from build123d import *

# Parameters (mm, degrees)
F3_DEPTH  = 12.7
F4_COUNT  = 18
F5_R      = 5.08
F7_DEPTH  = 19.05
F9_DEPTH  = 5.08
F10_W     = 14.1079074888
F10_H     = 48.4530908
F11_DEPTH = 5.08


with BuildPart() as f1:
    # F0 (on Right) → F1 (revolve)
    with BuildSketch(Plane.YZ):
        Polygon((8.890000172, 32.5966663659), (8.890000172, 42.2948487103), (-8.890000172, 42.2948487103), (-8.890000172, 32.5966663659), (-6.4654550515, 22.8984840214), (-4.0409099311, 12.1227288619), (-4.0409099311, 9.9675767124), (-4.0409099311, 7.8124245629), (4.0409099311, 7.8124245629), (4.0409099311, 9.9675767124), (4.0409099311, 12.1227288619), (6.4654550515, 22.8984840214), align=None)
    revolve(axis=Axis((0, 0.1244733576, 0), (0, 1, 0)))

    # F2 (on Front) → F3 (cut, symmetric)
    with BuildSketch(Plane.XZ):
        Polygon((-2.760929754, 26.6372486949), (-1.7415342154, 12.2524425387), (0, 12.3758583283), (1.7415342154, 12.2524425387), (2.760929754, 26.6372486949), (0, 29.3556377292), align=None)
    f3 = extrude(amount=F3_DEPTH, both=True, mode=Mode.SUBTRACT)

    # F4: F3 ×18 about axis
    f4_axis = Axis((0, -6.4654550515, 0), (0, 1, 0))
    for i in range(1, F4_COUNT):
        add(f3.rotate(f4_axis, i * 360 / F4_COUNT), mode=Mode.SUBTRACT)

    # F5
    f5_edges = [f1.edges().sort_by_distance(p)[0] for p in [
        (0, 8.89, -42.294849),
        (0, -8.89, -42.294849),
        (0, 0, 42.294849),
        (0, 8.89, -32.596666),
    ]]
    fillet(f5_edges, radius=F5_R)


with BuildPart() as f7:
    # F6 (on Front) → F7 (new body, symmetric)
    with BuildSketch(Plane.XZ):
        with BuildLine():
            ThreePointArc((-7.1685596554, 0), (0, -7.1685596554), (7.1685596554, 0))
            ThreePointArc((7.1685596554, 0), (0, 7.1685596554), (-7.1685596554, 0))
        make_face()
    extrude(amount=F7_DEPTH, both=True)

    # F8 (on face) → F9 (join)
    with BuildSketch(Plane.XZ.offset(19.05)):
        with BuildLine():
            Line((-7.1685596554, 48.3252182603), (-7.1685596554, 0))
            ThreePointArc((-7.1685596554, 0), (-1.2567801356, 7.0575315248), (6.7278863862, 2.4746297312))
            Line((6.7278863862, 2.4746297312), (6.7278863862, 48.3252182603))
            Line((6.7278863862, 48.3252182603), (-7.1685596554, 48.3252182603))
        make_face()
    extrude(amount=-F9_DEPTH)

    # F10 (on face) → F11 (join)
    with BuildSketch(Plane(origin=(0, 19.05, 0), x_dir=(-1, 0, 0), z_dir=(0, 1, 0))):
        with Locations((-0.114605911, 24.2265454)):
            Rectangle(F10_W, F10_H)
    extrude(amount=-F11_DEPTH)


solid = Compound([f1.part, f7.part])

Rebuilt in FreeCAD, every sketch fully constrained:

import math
import FreeCAD as App
import Part
import Sketcher

V = App.Vector
Q = App.Units.Quantity


def edges_at(feature, points):
    """Names of the edges that pass closest to the given points."""
    edges = feature.Shape.Edges
    near = lambda p: min(range(len(edges)), key=lambda i: edges[i].distToShape(Part.Vertex(*p))[0])
    return sorted({f"Edge{near(p) + 1}" for p in points})


def add_polygon(sketch, points):
    """Adds a closed chain of lines whose ends are joined by coincident constraints."""
    first, n = sketch.GeometryCount, len(points)
    for a, b in zip(points, points[1:] + points[:1]):
        sketch.addGeometry(Part.LineSegment(App.Vector(*a, 0), App.Vector(*b, 0)), False)
    for i in range(n):
        sketch.addConstraint(Sketcher.Constraint("Coincident", first + i, 2, first + (i + 1) % n, 1))

doc = App.newDocument("Part")
params = doc.addObject("Spreadsheet::Sheet", "Params")
for row, (alias, value) in enumerate([
    ("sketch1_width", "0.7 in"),
    ("revolution_angle", "360 deg"),
    ("pocket1_length", "1 in"),
    ("fillet_radius", "0.2 in"),
    ("pad1_length", "1.5 in"),
    ("pad2_length", "0.2 in"),
    ("pad3_length", "0.2 in"),
], start=1):
    params.set(f"A{row}", alias)
    params.set(f"B{row}", "=" + value)
    params.setAlias(f"B{row}", alias)

body = doc.addObject("PartDesign::Body", "Body")

# Sketch on YZ plane
sketch1 = doc.addObject("Sketcher::SketchObject", "Sketch")
body.addObject(sketch1)
sketch1.AttachmentSupport = (doc.YZ_Plane, [""])
sketch1.MapMode = "FlatFace"
add_polygon(sketch1, [(8.89, 32.596666), (8.89, 42.294849), (-8.89, 42.294849), (-8.89, 32.596666), (-6.465455, 22.898484), (-4.04091, 12.122729), (-4.04091, 7.812425), (4.04091, 7.812425), (4.04091, 12.122729), (6.465455, 22.898484)])  # lines 0-9
sketch1.addConstraint([
    Sketcher.Constraint("Vertical", 0),
    Sketcher.Constraint("Horizontal", 1),
    Sketcher.Constraint("Vertical", 2),
    Sketcher.Constraint("Vertical", 5),
    Sketcher.Constraint("Horizontal", 6),
    Sketcher.Constraint("Vertical", 7),
    Sketcher.Constraint("Symmetric", 4, 2, 7, 2, -2),
    Sketcher.Constraint("Symmetric", 3, 2, 8, 2, -2),
    Sketcher.Constraint("Symmetric", 2, 2, 9, 2, -2),
    Sketcher.Constraint("DistanceX", 1, 2, 1, 1, Q("0.7 in")),
    Sketcher.Constraint("DistanceX", 6, 1, 6, 2, Q("8.08182 mm")),
    Sketcher.Constraint("Distance", 4, Q("11.045149 mm")),
    Sketcher.Constraint("DistanceY", 0, 1, 0, 2, Q("9.698182 mm")),
    Sketcher.Constraint("DistanceY", 5, 2, 5, 1, Q("4.310304 mm")),
    Sketcher.Constraint("DistanceY", -1, 1, 0, 2, Q("42.294849 mm")),
    Sketcher.Constraint("DistanceY", -1, 1, 4, 2, Q("12.122729 mm")),
    Sketcher.Constraint("DistanceY", 5, 2, 3, 2, Q("15.086059 mm")),
])
sketch1.setExpression("Constraints[19]", "Params.sketch1_width")
revolution = doc.addObject("PartDesign::Revolution", "Revolution")
body.addObject(revolution)
revolution.Profile = sketch1
revolution.ReferenceAxis = (sketch1, ["H_Axis"])
revolution.setExpression("Angle", "Params.revolution_angle")

# Sketch on XZ plane
sketch2 = doc.addObject("Sketcher::SketchObject", "Sketch001")
body.addObject(sketch2)
sketch2.AttachmentSupport = (doc.XZ_Plane, [""])
sketch2.MapMode = "FlatFace"
add_polygon(sketch2, [(-2.76093, 26.637249), (-1.741534, 12.252443), (0, 12.375858), (1.741534, 12.252443), (2.76093, 26.637249), (0, 29.355638)])  # lines 0-5
sketch2.addConstraint([
    Sketcher.Constraint("Symmetric", 0, 2, 2, 2, -2),
    Sketcher.Constraint("Symmetric", 3, 2, 5, 2, -2),
    Sketcher.Constraint("PointOnObject", 1, 2, -2),
    Sketcher.Constraint("PointOnObject", 4, 2, -2),
    Sketcher.Constraint("Perpendicular", 0, 1),
    Sketcher.Constraint("Distance", 1, Q("1.745902 mm")),
    Sketcher.Constraint("Distance", 0, Q("14.420881 mm")),
    Sketcher.Constraint("Distance", 4, Q("3.87458 mm")),
    Sketcher.Constraint("DistanceY", -1, 1, 1, 2, Q("12.375858 mm")),
    Sketcher.Constraint("DistanceX", -1, 1, 3, 2, Q("2.76093 mm")),
])
pocket1 = doc.addObject("PartDesign::Pocket", "Pocket")
body.addObject(pocket1)
pocket1.Profile = sketch2
pocket1.setExpression("Length", "Params.pocket1_length")
pocket1.Midplane = True
doc.recompute()

polarpattern = doc.addObject("PartDesign::PolarPattern", "PolarPattern")
body.addObject(polarpattern)
polarpattern.Originals = [pocket1]
polarpattern.Axis = (doc.Y_Axis, [""])
polarpattern.Angle = 360
polarpattern.Occurrences = 18
body.Tip = polarpattern
doc.recompute()

fillet = doc.addObject("PartDesign::Fillet", "Fillet")
body.addObject(fillet)
fillet.Base = (polarpattern, edges_at(polarpattern, [
    (0, 8.89, -42.295),
    (0, -8.89, -42.295),
    (0, 0, 42.295),
    (0, 8.89, -32.597),
]))
fillet.setExpression("Radius", "Params.fillet_radius")
body2 = doc.addObject("PartDesign::Body", "Body001")

# Sketch on XZ plane
sketch3 = doc.addObject("Sketcher::SketchObject", "Sketch002")
body2.addObject(sketch3)
sketch3.AttachmentSupport = (doc.getObject("XZ_Plane001"), [""])
sketch3.MapMode = "FlatFace"
sketch3.addGeometry(Part.Circle(V(0, 0, 0), V(0, 0, 1), 7.16856), False)
sketch3.addConstraint([
    Sketcher.Constraint("Coincident", 0, 3, -1, 1),
    Sketcher.Constraint("Diameter", 0, Q("14.337119 mm")),
])
pad1 = doc.addObject("PartDesign::Pad", "Pad")
body2.addObject(pad1)
pad1.Profile = sketch3
pad1.setExpression("Length", "Params.pad1_length")
pad1.Midplane = True

# Sketch on XZ plane
sketch4 = doc.addObject("Sketcher::SketchObject", "Sketch003")
body2.addObject(sketch4)
sketch4.AttachmentSupport = (doc.getObject("XZ_Plane001"), [""])
sketch4.MapMode = "FlatFace"
sketch4.AttachmentOffset = App.Placement(V(0, 0, 0.75 * 25.4), App.Rotation())
sketch4.addGeometry([
    Part.LineSegment(V(-7.16856, 48.325218, 0), V(-7.16856, 0, 0)),
    Part.ArcOfCircle(Part.Circle(V(0, 0, 0), V(0, 0, 1), 7.16856), math.radians(20.194371), math.radians(180)),
    Part.LineSegment(V(6.727886, 2.47463, 0), V(6.727886, 48.325218, 0)),
    Part.LineSegment(V(6.727886, 48.325218, 0), V(-7.16856, 48.325218, 0)),
], False)
sketch4.addConstraint([
    Sketcher.Constraint("Tangent", 0, 2, 1, 2),
    Sketcher.Constraint("Coincident", 1, 1, 2, 1),
    Sketcher.Constraint("Coincident", 2, 2, 3, 1),
    Sketcher.Constraint("Coincident", 3, 2, 0, 1),
    Sketcher.Constraint("Vertical", 0),
    Sketcher.Constraint("Vertical", 2),
    Sketcher.Constraint("Horizontal", 3),
    Sketcher.Constraint("Coincident", 1, 3, -1, 1),
    Sketcher.Constraint("Radius", 1, Q("7.16856 mm")),
    Sketcher.Constraint("DistanceY", 0, 2, 0, 1, Q("48.325218 mm")),
    Sketcher.Constraint("DistanceY", 2, 1, 2, 2, Q("45.850589 mm")),
])
pad2 = doc.addObject("PartDesign::Pad", "Pad001")
body2.addObject(pad2)
pad2.Profile = sketch4
pad2.setExpression("Length", "Params.pad2_length")
pad2.Reversed = True

# Sketch on XZ plane
sketch5 = doc.addObject("Sketcher::SketchObject", "Sketch004")
body2.addObject(sketch5)
sketch5.AttachmentSupport = (doc.getObject("XZ_Plane001"), [""])
sketch5.MapMode = "FlatFace"
sketch5.AttachmentOffset = App.Placement(V(0, 0, -0.75 * 25.4), App.Rotation())
add_polygon(sketch5, [(7.16856, 48.453091), (7.16856, 0), (-6.939348, 0), (-6.939348, 48.453091)])  # lines 0-3
sketch5.addConstraint([
    Sketcher.Constraint("Vertical", 0),
    Sketcher.Constraint("Horizontal", 1),
    Sketcher.Constraint("Vertical", 2),
    Sketcher.Constraint("Horizontal", 3),
    Sketcher.Constraint("PointOnObject", 0, 2, -1),
    Sketcher.Constraint("DistanceY", 0, 2, 0, 1, Q("48.453091 mm")),
    Sketcher.Constraint("DistanceX", 1, 2, 1, 1, Q("14.107907 mm")),
    Sketcher.Constraint("DistanceX", -1, 1, 0, 2, Q("7.16856 mm")),
])
pad3 = doc.addObject("PartDesign::Pad", "Pad002")
body2.addObject(pad3)
pad3.Profile = sketch5
pad3.setExpression("Length", "Params.pad3_length")

doc.recompute()
